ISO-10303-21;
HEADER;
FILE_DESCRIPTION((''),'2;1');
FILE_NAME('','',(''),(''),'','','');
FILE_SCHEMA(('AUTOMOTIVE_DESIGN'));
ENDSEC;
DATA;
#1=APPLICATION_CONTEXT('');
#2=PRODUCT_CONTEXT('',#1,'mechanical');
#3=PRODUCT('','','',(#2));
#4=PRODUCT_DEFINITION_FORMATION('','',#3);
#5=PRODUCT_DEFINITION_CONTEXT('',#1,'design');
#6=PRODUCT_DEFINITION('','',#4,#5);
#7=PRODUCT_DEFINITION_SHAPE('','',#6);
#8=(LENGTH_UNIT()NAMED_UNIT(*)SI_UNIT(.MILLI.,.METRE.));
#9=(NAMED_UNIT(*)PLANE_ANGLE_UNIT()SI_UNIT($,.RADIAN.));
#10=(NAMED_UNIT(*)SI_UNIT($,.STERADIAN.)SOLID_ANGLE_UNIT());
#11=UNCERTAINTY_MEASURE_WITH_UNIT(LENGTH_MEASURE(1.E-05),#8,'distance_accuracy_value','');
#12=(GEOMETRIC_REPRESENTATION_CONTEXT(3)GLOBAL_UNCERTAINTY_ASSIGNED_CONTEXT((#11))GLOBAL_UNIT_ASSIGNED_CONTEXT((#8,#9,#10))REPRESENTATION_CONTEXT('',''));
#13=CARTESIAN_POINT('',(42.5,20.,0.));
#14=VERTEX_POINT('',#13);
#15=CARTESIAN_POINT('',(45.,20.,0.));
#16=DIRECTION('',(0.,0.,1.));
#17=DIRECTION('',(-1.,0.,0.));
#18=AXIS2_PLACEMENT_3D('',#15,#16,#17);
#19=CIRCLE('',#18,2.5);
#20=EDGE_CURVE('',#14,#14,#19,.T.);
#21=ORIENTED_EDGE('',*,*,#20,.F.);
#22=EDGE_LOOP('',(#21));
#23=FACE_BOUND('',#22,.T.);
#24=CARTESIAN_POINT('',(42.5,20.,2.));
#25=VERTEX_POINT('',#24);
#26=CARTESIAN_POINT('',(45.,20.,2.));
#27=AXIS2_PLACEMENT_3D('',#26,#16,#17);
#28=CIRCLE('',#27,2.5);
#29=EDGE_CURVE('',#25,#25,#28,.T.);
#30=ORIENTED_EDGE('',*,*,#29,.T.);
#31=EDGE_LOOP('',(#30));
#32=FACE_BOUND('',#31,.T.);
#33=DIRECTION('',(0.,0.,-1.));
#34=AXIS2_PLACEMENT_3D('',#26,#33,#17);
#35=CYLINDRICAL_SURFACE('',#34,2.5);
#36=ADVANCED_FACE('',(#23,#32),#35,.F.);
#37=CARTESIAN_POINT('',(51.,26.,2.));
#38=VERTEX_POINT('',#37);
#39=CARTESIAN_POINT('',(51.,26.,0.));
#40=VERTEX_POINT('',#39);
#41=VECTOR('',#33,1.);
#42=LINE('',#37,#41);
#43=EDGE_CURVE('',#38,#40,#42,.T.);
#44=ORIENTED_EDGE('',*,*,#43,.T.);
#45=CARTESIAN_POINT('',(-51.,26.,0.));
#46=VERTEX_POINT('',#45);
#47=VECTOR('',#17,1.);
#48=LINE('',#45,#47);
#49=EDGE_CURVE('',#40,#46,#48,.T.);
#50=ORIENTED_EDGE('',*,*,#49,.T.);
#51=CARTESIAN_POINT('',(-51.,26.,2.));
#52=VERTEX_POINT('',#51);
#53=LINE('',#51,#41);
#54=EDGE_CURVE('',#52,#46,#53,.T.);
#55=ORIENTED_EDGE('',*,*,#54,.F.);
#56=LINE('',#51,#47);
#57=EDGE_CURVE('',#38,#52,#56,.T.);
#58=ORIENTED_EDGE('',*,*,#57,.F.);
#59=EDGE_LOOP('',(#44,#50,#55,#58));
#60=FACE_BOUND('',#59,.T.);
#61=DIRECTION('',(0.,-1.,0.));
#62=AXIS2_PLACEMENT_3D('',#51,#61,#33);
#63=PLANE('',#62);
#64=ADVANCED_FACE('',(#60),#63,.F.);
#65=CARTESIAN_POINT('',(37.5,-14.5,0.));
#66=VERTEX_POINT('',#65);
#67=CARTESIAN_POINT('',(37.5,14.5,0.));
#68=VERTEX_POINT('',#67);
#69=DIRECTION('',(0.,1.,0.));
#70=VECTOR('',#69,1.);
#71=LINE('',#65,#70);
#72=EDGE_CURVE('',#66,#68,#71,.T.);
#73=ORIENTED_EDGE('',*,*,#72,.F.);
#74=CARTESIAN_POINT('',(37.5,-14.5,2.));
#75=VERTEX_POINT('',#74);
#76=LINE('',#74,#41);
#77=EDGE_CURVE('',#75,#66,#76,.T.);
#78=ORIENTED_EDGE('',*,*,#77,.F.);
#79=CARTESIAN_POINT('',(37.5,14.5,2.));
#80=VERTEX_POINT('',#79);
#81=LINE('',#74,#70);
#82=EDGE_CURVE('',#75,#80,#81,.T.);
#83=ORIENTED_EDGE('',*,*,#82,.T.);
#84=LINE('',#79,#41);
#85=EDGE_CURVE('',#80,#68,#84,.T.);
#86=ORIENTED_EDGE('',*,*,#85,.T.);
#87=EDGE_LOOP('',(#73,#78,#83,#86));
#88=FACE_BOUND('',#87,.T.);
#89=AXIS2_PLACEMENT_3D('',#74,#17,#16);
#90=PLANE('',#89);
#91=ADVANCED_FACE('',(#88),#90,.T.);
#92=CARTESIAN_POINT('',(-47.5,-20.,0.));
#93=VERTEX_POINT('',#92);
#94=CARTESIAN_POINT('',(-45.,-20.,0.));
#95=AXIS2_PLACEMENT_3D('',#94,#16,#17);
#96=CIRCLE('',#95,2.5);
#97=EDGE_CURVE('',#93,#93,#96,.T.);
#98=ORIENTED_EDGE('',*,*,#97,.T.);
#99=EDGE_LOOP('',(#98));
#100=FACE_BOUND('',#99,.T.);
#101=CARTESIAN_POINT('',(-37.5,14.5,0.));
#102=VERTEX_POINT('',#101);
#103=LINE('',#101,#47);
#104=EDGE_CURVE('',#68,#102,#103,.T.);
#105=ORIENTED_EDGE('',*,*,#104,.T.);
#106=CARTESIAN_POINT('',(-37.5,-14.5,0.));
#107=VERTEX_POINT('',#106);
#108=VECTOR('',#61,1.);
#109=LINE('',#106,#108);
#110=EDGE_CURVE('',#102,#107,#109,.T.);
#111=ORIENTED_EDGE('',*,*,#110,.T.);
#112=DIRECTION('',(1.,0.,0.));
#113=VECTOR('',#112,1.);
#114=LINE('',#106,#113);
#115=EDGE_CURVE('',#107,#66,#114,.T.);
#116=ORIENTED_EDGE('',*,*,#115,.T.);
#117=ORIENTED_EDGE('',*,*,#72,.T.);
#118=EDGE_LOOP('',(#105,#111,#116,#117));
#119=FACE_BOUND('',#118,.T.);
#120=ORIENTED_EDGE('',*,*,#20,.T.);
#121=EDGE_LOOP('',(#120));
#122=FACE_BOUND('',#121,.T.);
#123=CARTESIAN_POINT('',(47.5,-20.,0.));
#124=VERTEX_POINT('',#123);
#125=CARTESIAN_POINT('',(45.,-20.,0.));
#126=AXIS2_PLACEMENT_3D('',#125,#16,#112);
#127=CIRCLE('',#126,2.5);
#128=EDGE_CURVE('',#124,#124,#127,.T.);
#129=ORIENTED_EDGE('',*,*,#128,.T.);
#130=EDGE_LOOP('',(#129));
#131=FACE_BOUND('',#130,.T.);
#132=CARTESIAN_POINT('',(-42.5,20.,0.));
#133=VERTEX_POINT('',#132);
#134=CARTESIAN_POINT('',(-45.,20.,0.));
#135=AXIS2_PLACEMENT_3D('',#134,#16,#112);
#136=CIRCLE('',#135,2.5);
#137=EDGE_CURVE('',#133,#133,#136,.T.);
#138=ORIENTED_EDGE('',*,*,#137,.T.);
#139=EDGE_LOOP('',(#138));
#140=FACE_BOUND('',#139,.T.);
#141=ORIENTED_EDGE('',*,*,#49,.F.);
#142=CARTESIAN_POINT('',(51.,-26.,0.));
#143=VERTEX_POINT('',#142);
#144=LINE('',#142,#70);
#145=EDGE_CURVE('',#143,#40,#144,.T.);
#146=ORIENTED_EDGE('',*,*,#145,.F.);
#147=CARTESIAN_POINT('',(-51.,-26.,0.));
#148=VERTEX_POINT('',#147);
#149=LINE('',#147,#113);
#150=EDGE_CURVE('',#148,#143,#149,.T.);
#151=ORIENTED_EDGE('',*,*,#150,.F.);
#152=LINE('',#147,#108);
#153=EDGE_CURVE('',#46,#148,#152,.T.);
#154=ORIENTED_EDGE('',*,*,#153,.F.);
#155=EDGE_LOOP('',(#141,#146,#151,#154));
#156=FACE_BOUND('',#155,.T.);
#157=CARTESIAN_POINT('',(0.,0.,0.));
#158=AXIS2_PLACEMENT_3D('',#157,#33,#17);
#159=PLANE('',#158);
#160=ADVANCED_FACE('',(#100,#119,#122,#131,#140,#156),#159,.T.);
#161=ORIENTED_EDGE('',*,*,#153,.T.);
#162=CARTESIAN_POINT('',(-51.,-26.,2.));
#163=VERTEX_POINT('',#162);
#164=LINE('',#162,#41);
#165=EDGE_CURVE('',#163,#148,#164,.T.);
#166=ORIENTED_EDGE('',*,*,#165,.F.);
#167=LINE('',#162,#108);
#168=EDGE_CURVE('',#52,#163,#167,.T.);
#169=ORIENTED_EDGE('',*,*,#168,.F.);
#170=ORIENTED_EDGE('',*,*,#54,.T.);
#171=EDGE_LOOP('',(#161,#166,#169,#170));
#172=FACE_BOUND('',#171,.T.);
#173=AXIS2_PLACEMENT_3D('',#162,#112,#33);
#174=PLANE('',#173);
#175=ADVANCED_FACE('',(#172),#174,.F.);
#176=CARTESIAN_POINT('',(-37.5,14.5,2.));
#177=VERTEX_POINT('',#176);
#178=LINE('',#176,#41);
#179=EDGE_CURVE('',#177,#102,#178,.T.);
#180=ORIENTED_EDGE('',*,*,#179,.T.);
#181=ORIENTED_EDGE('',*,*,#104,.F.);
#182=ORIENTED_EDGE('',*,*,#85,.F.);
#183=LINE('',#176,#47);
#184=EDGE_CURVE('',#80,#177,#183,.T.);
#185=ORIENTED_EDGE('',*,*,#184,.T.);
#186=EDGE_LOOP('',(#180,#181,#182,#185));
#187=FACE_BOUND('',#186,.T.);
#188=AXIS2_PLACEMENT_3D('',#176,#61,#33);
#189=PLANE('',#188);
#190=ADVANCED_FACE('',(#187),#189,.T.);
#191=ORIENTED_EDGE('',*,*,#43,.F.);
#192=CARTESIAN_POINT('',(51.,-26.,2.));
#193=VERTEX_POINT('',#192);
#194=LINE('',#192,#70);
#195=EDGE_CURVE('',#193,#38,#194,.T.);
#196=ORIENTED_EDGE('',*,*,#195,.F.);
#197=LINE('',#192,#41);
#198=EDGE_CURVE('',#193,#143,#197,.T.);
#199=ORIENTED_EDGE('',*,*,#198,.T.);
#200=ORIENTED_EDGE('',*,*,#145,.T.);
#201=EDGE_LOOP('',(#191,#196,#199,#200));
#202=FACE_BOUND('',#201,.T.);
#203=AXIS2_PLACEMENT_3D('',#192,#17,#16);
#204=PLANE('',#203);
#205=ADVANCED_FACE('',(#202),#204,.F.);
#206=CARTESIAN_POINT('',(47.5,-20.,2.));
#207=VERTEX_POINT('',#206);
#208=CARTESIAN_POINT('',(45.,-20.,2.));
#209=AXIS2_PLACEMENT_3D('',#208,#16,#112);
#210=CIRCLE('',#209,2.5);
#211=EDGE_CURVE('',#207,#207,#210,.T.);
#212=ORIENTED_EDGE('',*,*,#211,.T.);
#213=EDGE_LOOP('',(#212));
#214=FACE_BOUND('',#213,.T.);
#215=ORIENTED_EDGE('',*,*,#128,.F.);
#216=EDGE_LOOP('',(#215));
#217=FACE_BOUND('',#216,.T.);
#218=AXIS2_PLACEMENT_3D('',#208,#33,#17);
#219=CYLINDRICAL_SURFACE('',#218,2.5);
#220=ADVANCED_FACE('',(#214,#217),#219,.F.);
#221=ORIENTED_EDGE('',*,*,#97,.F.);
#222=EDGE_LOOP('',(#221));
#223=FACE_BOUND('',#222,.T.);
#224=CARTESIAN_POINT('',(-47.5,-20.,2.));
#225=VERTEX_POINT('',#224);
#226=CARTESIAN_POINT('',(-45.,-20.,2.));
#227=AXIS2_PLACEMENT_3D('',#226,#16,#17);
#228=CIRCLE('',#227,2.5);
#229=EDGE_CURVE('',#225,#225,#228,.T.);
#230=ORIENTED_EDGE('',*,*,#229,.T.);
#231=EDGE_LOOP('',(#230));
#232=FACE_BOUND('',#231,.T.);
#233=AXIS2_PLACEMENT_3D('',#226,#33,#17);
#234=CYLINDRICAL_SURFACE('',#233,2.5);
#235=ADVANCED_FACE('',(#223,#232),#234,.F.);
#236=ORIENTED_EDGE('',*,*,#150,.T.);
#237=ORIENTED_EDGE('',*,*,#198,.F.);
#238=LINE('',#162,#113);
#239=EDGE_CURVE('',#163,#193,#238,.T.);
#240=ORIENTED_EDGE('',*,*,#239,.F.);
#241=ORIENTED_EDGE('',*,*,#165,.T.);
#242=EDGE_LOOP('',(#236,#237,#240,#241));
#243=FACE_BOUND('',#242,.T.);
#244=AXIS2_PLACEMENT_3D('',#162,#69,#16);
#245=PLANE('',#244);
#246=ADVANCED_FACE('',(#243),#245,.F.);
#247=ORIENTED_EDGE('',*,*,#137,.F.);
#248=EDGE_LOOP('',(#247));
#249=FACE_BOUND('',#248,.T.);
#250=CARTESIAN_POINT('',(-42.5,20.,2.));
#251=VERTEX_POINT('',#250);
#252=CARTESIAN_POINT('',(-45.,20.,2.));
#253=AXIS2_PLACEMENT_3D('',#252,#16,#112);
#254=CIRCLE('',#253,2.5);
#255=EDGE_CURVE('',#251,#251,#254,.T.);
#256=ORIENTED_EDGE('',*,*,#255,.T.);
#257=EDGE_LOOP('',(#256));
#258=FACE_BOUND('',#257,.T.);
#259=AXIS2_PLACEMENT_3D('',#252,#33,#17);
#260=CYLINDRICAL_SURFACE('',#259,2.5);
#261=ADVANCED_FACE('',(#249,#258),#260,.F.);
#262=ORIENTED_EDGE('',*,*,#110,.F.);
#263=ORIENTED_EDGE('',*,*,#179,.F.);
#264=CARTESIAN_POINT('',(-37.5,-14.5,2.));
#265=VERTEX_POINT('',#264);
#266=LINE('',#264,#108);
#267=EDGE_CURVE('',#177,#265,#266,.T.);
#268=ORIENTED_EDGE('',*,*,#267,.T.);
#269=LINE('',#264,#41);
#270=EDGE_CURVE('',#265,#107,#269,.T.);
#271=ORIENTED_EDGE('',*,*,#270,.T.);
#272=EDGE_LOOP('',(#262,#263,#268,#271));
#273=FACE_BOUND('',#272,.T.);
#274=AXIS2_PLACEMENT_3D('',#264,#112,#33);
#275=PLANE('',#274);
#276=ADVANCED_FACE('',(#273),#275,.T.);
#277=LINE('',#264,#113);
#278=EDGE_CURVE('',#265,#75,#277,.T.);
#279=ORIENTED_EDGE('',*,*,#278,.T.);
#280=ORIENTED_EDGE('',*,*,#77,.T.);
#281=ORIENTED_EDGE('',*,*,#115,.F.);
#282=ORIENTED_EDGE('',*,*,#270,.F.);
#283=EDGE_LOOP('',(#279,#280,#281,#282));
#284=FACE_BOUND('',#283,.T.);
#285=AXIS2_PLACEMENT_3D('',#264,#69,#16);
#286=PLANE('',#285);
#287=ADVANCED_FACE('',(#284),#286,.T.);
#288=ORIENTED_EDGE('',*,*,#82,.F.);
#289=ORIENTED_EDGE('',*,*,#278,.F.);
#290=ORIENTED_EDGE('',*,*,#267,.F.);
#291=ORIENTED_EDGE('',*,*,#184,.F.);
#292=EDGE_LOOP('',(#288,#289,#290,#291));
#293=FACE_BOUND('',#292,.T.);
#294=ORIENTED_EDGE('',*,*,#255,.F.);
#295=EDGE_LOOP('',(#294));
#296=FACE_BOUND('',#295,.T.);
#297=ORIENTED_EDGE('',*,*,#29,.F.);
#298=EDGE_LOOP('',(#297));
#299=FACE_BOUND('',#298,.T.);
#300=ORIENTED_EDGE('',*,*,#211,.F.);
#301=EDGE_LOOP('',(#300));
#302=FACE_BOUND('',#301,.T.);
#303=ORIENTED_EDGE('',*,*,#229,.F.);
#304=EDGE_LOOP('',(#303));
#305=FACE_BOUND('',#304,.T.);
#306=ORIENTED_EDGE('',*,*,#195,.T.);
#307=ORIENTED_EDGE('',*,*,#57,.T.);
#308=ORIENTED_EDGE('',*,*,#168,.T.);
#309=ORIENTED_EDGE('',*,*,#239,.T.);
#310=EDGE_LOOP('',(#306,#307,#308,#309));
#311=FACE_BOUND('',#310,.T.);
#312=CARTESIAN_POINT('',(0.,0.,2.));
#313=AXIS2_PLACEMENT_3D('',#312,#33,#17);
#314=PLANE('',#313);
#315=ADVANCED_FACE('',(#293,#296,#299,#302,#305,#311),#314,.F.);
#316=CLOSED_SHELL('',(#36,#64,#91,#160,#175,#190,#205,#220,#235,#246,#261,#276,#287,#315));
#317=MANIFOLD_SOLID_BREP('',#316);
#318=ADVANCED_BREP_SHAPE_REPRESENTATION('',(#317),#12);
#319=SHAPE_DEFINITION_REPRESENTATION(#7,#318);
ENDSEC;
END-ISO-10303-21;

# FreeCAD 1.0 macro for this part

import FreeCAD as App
import Part
import Sketcher
from FreeCAD import Vector
Q = App.Units.Quantity


def add_polygon(sketch, points):
    """Adds a closed chain of lines whose ends are joined by coincident constraints."""
    first, n = sketch.GeometryCount, len(points)
    for a, b in zip(points, points[1:] + points[:1]):
        sketch.addGeometry(Part.LineSegment(App.Vector(*a, 0), App.Vector(*b, 0)), False)
    for i in range(n):
        sketch.addConstraint(Sketcher.Constraint("Coincident", first + i, 2, first + (i + 1) % n, 1))

doc = App.newDocument("Part")
body = doc.addObject("PartDesign::Body", "Body")

# Sketch on XY plane
sketch1 = body.newObject("Sketcher::SketchObject", "Sketch")
sketch1.AttachmentSupport = (doc.getObject("XY_Plane"), [""])
sketch1.MapMode = "FlatFace"
add_polygon(sketch1, [(-51, 26), (-51, -26), (51, -26), (51, 26)])  # lines 0-3
sketch1.addGeometry(Part.Circle(Vector(-45, -20, 0), Vector(0, 0, 1), 2.5), False)  # 4
sketch1.addGeometry(Part.Circle(Vector(45, -20, 0), Vector(0, 0, 1), 2.5), False)  # 5
sketch1.addGeometry(Part.Circle(Vector(-45, 20, 0), Vector(0, 0, 1), 2.5), False)  # 6
add_polygon(sketch1, [(37.5, -14.5), (-37.5, -14.5), (-37.5, 14.5), (37.5, 14.5)])  # lines 7-10
sketch1.addGeometry(Part.Circle(Vector(45, 20, 0), Vector(0, 0, 1), 2.5), False)  # 11
sketch1.addConstraint([
    Sketcher.Constraint("Vertical", 0),
    Sketcher.Constraint("Horizontal", 1),
    Sketcher.Constraint("Vertical", 2),
    Sketcher.Constraint("Horizontal", 3),
    Sketcher.Constraint("Horizontal", 7),
    Sketcher.Constraint("Vertical", 8),
    Sketcher.Constraint("Horizontal", 9),
    Sketcher.Constraint("Vertical", 10),
    Sketcher.Constraint("Equal", 4, 5),
    Sketcher.Constraint("Equal", 5, 6),
    Sketcher.Constraint("Equal", 6, 11),
    Sketcher.Constraint("Symmetric", 5, 3, 6, 3, -1, 1),
    Sketcher.Constraint("Symmetric", 4, 3, 11, 3, -1, 1),
    Sketcher.Constraint("Symmetric", 0, 2, 2, 2, -1, 1),
    Sketcher.Constraint("Symmetric", 7, 2, 9, 2, -1, 1),
    Sketcher.Constraint("Symmetric", 4, 3, 5, 3, -2),
    Sketcher.Constraint("Diameter", 4, Q("5 mm")),
    Sketcher.Constraint("DistanceX", 1, 1, 1, 2, Q("102 mm")),
    Sketcher.Constraint("DistanceX", 7, 2, 7, 1, Q("75 mm")),
    Sketcher.Constraint("DistanceY", 0, 2, 0, 1, Q("52 mm")),
    Sketcher.Constraint("DistanceY", 8, 1, 8, 2, Q("29 mm")),
    Sketcher.Constraint("DistanceX", 4, 3, -1, 1, Q("45 mm")),
    Sketcher.Constraint("DistanceY", 4, 3, -1, 1, Q("20 mm")),
])
pad1 = body.newObject("PartDesign::Pad", "Pad")
pad1.Profile = sketch1
pad1.Length = 2

doc.recompute()
